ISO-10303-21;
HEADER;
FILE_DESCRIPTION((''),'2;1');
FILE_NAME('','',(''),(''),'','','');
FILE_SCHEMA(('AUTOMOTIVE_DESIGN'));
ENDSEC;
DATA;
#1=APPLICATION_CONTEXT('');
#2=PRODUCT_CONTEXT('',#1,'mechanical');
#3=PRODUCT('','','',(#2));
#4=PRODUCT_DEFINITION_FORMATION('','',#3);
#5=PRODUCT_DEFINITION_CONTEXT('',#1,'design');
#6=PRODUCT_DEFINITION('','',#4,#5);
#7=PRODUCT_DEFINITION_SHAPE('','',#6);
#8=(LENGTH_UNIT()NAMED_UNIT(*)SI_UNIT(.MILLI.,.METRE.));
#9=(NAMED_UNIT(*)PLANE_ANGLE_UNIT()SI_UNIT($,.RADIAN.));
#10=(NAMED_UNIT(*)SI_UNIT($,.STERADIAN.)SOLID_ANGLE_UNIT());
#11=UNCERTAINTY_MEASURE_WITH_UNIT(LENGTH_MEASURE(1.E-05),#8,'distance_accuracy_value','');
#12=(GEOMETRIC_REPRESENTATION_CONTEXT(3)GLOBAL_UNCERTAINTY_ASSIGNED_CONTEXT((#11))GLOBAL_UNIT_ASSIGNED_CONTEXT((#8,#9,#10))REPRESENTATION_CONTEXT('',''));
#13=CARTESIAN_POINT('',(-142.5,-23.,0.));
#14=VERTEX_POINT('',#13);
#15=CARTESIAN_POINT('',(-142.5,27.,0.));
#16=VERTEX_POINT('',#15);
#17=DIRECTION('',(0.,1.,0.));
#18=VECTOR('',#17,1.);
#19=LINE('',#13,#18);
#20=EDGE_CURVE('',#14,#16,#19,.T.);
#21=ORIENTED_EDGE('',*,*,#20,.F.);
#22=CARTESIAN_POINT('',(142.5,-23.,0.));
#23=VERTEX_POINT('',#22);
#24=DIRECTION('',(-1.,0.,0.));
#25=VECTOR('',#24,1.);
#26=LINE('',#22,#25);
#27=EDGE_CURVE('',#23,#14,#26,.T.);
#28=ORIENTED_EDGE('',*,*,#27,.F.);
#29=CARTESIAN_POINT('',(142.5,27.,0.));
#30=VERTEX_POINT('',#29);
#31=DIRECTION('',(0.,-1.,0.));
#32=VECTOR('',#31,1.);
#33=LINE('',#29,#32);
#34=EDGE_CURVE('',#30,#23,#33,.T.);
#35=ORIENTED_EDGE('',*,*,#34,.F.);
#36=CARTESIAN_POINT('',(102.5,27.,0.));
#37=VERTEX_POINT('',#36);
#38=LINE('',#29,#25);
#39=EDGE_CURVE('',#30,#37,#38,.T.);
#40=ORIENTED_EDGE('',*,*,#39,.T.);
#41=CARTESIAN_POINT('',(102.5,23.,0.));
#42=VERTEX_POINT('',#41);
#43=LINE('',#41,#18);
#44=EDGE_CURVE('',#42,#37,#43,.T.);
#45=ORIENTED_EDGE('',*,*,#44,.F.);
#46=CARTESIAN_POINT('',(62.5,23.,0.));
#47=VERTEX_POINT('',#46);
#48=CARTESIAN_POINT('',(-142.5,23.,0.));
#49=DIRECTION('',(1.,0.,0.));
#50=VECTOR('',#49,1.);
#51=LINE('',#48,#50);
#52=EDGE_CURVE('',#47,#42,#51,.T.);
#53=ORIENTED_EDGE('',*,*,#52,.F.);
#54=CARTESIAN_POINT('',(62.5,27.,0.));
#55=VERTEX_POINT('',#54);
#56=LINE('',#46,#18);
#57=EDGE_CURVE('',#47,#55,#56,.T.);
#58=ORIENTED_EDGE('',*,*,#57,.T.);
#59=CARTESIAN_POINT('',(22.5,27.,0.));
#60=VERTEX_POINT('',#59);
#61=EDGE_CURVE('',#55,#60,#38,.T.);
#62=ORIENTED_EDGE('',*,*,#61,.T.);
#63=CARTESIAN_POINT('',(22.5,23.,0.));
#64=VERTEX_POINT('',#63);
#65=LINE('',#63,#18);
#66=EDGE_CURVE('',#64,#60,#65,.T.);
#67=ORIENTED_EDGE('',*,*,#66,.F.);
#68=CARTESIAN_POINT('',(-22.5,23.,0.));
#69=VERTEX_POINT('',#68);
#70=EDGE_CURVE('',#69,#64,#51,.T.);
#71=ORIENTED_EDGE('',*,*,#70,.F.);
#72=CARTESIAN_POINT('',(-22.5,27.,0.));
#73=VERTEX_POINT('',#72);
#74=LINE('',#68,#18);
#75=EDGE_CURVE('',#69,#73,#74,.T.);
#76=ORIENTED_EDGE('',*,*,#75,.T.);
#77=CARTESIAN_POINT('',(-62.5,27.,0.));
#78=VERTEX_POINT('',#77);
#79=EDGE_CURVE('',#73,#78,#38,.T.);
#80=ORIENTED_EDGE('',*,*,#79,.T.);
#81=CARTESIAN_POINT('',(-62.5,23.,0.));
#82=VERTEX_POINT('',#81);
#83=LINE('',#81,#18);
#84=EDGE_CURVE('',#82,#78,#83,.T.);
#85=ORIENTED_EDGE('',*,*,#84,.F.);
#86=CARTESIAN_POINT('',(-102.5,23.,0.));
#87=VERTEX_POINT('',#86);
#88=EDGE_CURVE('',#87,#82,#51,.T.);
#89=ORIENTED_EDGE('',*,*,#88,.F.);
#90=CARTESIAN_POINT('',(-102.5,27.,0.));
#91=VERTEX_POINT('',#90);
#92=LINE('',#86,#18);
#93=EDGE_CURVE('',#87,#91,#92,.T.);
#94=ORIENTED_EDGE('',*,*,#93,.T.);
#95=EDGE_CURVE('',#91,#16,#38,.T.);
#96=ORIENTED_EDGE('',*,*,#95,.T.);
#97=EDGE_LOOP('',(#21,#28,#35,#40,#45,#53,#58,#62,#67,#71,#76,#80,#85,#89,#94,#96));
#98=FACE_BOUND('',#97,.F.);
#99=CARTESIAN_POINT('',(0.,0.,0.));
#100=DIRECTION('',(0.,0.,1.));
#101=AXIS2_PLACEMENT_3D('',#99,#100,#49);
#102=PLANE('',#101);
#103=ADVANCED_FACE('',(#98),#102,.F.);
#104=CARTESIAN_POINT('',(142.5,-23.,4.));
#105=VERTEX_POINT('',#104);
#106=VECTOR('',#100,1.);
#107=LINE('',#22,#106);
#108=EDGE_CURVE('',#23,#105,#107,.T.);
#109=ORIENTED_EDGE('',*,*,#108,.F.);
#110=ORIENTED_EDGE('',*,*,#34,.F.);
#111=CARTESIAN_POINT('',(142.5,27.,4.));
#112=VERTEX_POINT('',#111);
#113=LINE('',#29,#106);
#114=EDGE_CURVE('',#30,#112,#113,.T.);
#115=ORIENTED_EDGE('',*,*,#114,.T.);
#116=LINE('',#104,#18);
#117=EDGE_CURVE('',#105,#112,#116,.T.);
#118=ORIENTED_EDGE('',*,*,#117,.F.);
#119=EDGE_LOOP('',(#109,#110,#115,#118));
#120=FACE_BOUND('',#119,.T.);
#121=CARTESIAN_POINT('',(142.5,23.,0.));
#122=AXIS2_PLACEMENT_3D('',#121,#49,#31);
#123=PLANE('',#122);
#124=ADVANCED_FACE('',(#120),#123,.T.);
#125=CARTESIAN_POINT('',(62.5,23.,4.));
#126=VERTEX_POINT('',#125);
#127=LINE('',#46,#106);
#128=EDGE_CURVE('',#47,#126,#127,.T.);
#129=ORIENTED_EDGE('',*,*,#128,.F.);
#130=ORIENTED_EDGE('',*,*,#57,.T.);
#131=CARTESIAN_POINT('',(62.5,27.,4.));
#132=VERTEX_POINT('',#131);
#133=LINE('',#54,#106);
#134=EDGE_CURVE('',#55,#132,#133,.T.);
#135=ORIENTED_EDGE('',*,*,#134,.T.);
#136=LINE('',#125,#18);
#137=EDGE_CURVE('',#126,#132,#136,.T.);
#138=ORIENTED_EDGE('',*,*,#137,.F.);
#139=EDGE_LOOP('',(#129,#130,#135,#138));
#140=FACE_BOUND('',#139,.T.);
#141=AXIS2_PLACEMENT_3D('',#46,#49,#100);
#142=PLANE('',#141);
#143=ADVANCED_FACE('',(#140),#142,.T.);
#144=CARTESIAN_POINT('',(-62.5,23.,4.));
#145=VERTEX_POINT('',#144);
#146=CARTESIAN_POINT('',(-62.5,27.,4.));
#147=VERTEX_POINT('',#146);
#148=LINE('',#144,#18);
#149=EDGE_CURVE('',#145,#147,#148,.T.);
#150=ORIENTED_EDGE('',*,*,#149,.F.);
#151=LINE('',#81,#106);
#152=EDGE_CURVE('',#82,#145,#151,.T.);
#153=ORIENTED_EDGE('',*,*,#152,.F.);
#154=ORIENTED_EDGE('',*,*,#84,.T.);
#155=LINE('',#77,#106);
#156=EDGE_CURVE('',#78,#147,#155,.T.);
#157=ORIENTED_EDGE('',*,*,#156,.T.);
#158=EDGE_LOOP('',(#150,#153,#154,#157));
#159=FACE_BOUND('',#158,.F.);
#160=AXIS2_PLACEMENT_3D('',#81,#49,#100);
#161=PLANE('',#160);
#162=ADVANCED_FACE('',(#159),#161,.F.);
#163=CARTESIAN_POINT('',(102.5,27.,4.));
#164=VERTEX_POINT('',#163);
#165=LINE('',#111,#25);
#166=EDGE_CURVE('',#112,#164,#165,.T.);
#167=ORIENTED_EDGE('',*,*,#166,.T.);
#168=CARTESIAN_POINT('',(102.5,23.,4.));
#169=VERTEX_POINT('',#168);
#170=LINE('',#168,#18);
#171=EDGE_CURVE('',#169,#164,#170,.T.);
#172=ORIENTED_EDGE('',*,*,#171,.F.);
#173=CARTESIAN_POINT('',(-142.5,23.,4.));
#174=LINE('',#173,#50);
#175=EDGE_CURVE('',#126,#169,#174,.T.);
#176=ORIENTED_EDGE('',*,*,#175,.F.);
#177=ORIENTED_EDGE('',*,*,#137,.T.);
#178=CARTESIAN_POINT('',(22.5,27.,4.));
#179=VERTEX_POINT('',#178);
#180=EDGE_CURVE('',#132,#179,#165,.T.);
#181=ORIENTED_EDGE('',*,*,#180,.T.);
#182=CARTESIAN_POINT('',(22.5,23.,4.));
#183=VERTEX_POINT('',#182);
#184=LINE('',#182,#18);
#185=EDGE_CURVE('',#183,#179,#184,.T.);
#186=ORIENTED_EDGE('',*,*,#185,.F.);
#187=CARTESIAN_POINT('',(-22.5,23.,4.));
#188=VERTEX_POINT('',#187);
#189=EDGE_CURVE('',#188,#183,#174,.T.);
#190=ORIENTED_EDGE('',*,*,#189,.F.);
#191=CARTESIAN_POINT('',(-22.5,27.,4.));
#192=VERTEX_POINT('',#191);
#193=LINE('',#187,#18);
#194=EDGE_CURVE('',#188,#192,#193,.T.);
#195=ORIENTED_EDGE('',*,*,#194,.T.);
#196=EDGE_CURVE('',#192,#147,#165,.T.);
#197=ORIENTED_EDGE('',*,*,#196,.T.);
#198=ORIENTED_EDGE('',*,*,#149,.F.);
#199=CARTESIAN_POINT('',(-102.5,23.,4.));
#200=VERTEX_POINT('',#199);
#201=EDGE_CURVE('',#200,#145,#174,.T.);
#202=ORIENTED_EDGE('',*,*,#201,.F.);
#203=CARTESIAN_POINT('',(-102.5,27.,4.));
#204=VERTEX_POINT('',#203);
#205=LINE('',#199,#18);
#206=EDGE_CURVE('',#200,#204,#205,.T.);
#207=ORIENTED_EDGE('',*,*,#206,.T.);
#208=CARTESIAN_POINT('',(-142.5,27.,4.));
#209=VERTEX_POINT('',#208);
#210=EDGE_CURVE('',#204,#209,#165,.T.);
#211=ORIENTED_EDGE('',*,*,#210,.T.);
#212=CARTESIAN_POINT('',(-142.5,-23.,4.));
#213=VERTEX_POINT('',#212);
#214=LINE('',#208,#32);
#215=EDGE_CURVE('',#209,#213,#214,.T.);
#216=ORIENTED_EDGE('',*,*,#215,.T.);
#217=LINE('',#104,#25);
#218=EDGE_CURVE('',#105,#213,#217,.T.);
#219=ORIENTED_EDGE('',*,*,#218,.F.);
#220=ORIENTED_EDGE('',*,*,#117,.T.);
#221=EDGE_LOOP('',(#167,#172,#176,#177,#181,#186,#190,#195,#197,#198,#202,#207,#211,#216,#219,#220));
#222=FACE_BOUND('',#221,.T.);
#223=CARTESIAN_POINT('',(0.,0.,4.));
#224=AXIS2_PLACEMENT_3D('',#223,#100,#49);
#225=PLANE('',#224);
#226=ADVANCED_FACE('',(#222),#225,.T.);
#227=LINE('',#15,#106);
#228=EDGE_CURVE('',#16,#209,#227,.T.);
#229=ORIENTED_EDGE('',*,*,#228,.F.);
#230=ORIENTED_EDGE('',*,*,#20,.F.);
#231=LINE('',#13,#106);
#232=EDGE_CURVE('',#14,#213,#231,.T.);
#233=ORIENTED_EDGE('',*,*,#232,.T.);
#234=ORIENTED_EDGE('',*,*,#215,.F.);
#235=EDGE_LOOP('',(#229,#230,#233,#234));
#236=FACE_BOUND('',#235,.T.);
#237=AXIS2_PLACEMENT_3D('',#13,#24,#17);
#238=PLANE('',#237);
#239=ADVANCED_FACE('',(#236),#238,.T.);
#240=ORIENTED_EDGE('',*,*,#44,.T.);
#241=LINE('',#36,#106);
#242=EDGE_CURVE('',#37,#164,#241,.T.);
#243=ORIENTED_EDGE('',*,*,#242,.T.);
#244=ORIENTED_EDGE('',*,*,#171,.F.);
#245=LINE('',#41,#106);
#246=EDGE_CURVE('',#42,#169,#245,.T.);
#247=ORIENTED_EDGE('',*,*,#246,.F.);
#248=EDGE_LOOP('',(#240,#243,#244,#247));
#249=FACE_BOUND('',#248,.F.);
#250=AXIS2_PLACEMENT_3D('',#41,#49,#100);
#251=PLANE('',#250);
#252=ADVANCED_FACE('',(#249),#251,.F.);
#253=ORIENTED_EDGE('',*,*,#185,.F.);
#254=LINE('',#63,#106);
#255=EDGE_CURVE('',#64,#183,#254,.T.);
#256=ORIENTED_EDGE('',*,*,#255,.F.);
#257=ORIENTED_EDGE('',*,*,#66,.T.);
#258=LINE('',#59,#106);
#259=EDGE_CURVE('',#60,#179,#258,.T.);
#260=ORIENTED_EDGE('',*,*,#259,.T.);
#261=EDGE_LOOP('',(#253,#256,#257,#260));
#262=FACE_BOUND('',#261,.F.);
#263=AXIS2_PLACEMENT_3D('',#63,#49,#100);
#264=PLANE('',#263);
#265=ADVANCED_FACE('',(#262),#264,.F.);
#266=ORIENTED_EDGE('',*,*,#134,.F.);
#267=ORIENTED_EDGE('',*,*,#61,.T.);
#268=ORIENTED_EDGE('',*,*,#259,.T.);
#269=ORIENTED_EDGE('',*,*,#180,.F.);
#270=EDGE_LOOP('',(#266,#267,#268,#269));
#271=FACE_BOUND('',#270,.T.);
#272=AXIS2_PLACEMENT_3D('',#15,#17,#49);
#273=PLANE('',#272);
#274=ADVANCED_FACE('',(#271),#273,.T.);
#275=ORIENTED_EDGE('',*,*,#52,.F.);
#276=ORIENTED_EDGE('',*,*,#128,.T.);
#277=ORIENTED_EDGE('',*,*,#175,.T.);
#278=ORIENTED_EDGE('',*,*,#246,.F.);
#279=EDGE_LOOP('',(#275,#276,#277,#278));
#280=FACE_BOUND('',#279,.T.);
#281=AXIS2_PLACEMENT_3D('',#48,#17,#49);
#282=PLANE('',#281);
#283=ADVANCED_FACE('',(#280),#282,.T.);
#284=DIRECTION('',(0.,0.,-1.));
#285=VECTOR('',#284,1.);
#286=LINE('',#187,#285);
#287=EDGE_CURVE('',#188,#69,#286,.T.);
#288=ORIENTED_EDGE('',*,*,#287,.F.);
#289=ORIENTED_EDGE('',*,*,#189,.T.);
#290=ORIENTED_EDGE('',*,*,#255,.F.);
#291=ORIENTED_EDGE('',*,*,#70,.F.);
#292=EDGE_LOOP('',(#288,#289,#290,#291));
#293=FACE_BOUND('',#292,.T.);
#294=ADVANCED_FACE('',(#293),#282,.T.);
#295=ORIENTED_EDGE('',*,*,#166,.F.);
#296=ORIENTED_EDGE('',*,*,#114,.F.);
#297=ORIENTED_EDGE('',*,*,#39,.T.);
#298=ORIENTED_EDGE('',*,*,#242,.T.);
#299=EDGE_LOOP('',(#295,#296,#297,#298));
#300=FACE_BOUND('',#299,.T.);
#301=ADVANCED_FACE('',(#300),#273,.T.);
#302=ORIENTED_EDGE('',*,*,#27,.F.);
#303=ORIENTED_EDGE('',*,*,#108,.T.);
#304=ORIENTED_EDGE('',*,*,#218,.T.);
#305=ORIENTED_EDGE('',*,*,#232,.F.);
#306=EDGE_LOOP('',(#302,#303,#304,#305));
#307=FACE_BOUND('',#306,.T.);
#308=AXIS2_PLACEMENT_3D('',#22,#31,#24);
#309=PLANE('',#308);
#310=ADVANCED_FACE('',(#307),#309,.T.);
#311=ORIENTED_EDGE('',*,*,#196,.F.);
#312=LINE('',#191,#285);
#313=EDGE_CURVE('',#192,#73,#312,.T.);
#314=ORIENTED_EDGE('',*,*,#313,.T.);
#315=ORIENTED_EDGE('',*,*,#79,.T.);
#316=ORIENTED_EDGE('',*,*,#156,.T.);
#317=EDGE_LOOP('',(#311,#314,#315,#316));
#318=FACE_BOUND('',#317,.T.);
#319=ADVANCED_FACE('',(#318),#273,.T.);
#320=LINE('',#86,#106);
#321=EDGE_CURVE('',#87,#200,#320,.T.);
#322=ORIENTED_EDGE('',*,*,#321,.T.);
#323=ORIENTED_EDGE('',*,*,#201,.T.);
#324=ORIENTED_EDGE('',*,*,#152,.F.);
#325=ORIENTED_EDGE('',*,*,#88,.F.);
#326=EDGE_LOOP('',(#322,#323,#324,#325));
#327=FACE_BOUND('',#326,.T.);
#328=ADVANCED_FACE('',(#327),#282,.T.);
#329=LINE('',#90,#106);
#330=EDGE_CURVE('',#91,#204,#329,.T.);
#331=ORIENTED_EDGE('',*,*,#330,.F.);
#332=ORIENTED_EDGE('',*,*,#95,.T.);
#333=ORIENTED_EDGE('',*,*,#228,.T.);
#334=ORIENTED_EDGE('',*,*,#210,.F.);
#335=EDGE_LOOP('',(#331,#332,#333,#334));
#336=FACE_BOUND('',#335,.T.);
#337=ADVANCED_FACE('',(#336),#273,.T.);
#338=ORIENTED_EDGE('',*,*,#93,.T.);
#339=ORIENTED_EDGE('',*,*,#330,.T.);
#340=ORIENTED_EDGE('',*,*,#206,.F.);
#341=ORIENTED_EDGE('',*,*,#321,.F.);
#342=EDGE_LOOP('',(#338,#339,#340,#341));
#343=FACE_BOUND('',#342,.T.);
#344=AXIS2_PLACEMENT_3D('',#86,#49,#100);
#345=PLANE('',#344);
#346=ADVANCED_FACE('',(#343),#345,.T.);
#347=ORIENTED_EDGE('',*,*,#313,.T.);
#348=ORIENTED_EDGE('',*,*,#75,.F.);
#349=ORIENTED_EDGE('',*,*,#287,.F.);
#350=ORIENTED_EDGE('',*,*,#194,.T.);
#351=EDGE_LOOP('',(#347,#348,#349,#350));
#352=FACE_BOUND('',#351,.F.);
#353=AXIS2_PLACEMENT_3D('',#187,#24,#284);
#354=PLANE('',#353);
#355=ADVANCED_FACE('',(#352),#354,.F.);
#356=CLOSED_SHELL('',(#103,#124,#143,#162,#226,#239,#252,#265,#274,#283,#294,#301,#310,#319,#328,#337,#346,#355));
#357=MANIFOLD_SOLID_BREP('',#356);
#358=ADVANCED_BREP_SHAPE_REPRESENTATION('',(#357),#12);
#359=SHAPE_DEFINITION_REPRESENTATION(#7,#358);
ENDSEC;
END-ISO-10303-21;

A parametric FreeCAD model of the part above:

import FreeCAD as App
import Part
import Sketcher

V = App.Vector
Q = App.Units.Quantity

doc = App.newDocument("Part")
body = doc.addObject("PartDesign::Body", "Body")

# Sketch on XY plane
sketch1 = doc.addObject("Sketcher::SketchObject", "Sketch")
body.addObject(sketch1)
sketch1.AttachmentSupport = (doc.XY_Plane, [""])
sketch1.MapMode = "FlatFace"
sketch1.addGeometry([
    Part.LineSegment(V(142, 23, 0), V(-142, 23, 0)),
    Part.LineSegment(V(-142, 23, 0), V(-142, -23, 0)),
    Part.LineSegment(V(-142, -23, 0), V(142, -23, 0)),
    Part.LineSegment(V(142, -23, 0), V(142, 23, 0)),
], False)
sketch1.addConstraint([
    Sketcher.Constraint("Coincident", 0, 2, 1, 1),
    Sketcher.Constraint("Coincident", 1, 2, 2, 1),
    Sketcher.Constraint("Coincident", 2, 2, 3, 1),
    Sketcher.Constraint("Coincident", 3, 2, 0, 1),
    Sketcher.Constraint("Horizontal", 0),
    Sketcher.Constraint("Vertical", 1),
    Sketcher.Constraint("Horizontal", 2),
    Sketcher.Constraint("Vertical", 3),
    Sketcher.Constraint("Symmetric", 0, 2, 2, 2, -1, 1),
    Sketcher.Constraint("DistanceX", 0, 2, 0, 1, Q("285 mm")),
    Sketcher.Constraint("DistanceY", 1, 2, 1, 1, Q("46 mm")),
])
pad1 = doc.addObject("PartDesign::Pad", "Pad")
body.addObject(pad1)
pad1.Profile = sketch1
pad1.Length = 4

# Sketch on XZ plane
sketch2 = doc.addObject("Sketcher::SketchObject", "Sketch001")
body.addObject(sketch2)
sketch2.AttachmentSupport = (doc.XZ_Plane, [""])
sketch2.MapMode = "FlatFace"
sketch2.AttachmentOffset = App.Placement(V(0, 0, -23), App.Rotation())
sketch2.addGeometry([
    Part.LineSegment(V(142.5, 4, 0), V(142.5, 0, 0)),  # 0
    Part.LineSegment(V(142.5, 0, 0), V(102.5, 0, 0)),  # 1
    Part.LineSegment(V(102.5, 0, 0), V(102.5, 4, 0)),  # 2
    Part.LineSegment(V(102.5, 4, 0), V(142.5, 4, 0)),  # 3
    Part.LineSegment(V(62.5, 4, 0), V(62.5, 0, 0)),  # 4
    Part.LineSegment(V(62.5, 0, 0), V(22.5, 0, 0)),  # 5
    Part.LineSegment(V(22.5, 0, 0), V(22.5, 4, 0)),  # 6
    Part.LineSegment(V(22.5, 4, 0), V(62.5, 4, 0)),  # 7
    Part.LineSegment(V(-22.5, 4, 0), V(-22.5, 0, 0)),  # 8
    Part.LineSegment(V(-22.5, 0, 0), V(-62.5, 0, 0)),  # 9
    Part.LineSegment(V(-62.5, 0, 0), V(-62.5, 4, 0)),  # 10
    Part.LineSegment(V(-62.5, 4, 0), V(-22.5, 4, 0)),  # 11
    Part.LineSegment(V(-102.5, 4, 0), V(-102.5, 0, 0)),  # 12
    Part.LineSegment(V(-102.5, 0, 0), V(-142.5, 0, 0)),  # 13
    Part.LineSegment(V(-142.5, 0, 0), V(-142.5, 4, 0)),  # 14
    Part.LineSegment(V(-142.5, 4, 0), V(-102.5, 4, 0)),  # 15
], False)
sketch2.addConstraint([
    Sketcher.Constraint("Coincident", 0, 2, 1, 1),
    Sketcher.Constraint("Coincident", 1, 2, 2, 1),
    Sketcher.Constraint("Coincident", 2, 2, 3, 1),
    Sketcher.Constraint("Coincident", 3, 2, 0, 1),
    Sketcher.Constraint("Coincident", 4, 2, 5, 1),
    Sketcher.Constraint("Coincident", 5, 2, 6, 1),
    Sketcher.Constraint("Coincident", 6, 2, 7, 1),
    Sketcher.Constraint("Coincident", 7, 2, 4, 1),
    Sketcher.Constraint("Coincident", 8, 2, 9, 1),
    Sketcher.Constraint("Coincident", 9, 2, 10, 1),
    Sketcher.Constraint("Coincident", 10, 2, 11, 1),
    Sketcher.Constraint("Coincident", 11, 2, 8, 1),
    Sketcher.Constraint("Coincident", 12, 2, 13, 1),
    Sketcher.Constraint("Coincident", 13, 2, 14, 1),
    Sketcher.Constraint("Coincident", 14, 2, 15, 1),
    Sketcher.Constraint("Coincident", 15, 2, 12, 1),
    Sketcher.Constraint("Vertical", 0),
    Sketcher.Constraint("Horizontal", 1),
    Sketcher.Constraint("Vertical", 2),
    Sketcher.Constraint("Horizontal", 3),
    Sketcher.Constraint("Vertical", 4),
    Sketcher.Constraint("Horizontal", 5),
    Sketcher.Constraint("Vertical", 6),
    Sketcher.Constraint("Horizontal", 7),
    Sketcher.Constraint("Vertical", 8),
    Sketcher.Constraint("Horizontal", 9),
    Sketcher.Constraint("Vertical", 10),
    Sketcher.Constraint("Horizontal", 11),
    Sketcher.Constraint("Vertical", 12),
    Sketcher.Constraint("Horizontal", 13),
    Sketcher.Constraint("Vertical", 14),
    Sketcher.Constraint("Horizontal", 15),
    Sketcher.Constraint("Symmetric", 5, 2, 8, 2, -1, 1),
    Sketcher.Constraint("Symmetric", 1, 2, 12, 2, -1, 1),
    Sketcher.Constraint("Symmetric", 4, 2, 9, 2, -2),
    Sketcher.Constraint("Symmetric", 0, 2, 13, 2, -2),
    Sketcher.Constraint("Horizontal", 3, 2, 6, 2),
    Sketcher.Constraint("Horizontal", 7, 2, 10, 2),
    Sketcher.Constraint("Horizontal", 11, 2, 14, 2),
    Sketcher.Constraint("Equal", 3, 5),
    Sketcher.Constraint("DistanceX", 1, 2, 1, 1, Q("40 mm")),
    Sketcher.Constraint("DistanceX", 4, 2, 1, 2, Q("40 mm")),
    Sketcher.Constraint("DistanceY", 0, 2, 0, 1, Q("4 mm")),
    Sketcher.Constraint("DistanceX", 8, 2, 5, 2, Q("45 mm")),
])
pad2 = doc.addObject("PartDesign::Pad", "Pad001")
body.addObject(pad2)
pad2.Profile = sketch2
pad2.Length = 4
pad2.Reversed = True

doc.recompute()
